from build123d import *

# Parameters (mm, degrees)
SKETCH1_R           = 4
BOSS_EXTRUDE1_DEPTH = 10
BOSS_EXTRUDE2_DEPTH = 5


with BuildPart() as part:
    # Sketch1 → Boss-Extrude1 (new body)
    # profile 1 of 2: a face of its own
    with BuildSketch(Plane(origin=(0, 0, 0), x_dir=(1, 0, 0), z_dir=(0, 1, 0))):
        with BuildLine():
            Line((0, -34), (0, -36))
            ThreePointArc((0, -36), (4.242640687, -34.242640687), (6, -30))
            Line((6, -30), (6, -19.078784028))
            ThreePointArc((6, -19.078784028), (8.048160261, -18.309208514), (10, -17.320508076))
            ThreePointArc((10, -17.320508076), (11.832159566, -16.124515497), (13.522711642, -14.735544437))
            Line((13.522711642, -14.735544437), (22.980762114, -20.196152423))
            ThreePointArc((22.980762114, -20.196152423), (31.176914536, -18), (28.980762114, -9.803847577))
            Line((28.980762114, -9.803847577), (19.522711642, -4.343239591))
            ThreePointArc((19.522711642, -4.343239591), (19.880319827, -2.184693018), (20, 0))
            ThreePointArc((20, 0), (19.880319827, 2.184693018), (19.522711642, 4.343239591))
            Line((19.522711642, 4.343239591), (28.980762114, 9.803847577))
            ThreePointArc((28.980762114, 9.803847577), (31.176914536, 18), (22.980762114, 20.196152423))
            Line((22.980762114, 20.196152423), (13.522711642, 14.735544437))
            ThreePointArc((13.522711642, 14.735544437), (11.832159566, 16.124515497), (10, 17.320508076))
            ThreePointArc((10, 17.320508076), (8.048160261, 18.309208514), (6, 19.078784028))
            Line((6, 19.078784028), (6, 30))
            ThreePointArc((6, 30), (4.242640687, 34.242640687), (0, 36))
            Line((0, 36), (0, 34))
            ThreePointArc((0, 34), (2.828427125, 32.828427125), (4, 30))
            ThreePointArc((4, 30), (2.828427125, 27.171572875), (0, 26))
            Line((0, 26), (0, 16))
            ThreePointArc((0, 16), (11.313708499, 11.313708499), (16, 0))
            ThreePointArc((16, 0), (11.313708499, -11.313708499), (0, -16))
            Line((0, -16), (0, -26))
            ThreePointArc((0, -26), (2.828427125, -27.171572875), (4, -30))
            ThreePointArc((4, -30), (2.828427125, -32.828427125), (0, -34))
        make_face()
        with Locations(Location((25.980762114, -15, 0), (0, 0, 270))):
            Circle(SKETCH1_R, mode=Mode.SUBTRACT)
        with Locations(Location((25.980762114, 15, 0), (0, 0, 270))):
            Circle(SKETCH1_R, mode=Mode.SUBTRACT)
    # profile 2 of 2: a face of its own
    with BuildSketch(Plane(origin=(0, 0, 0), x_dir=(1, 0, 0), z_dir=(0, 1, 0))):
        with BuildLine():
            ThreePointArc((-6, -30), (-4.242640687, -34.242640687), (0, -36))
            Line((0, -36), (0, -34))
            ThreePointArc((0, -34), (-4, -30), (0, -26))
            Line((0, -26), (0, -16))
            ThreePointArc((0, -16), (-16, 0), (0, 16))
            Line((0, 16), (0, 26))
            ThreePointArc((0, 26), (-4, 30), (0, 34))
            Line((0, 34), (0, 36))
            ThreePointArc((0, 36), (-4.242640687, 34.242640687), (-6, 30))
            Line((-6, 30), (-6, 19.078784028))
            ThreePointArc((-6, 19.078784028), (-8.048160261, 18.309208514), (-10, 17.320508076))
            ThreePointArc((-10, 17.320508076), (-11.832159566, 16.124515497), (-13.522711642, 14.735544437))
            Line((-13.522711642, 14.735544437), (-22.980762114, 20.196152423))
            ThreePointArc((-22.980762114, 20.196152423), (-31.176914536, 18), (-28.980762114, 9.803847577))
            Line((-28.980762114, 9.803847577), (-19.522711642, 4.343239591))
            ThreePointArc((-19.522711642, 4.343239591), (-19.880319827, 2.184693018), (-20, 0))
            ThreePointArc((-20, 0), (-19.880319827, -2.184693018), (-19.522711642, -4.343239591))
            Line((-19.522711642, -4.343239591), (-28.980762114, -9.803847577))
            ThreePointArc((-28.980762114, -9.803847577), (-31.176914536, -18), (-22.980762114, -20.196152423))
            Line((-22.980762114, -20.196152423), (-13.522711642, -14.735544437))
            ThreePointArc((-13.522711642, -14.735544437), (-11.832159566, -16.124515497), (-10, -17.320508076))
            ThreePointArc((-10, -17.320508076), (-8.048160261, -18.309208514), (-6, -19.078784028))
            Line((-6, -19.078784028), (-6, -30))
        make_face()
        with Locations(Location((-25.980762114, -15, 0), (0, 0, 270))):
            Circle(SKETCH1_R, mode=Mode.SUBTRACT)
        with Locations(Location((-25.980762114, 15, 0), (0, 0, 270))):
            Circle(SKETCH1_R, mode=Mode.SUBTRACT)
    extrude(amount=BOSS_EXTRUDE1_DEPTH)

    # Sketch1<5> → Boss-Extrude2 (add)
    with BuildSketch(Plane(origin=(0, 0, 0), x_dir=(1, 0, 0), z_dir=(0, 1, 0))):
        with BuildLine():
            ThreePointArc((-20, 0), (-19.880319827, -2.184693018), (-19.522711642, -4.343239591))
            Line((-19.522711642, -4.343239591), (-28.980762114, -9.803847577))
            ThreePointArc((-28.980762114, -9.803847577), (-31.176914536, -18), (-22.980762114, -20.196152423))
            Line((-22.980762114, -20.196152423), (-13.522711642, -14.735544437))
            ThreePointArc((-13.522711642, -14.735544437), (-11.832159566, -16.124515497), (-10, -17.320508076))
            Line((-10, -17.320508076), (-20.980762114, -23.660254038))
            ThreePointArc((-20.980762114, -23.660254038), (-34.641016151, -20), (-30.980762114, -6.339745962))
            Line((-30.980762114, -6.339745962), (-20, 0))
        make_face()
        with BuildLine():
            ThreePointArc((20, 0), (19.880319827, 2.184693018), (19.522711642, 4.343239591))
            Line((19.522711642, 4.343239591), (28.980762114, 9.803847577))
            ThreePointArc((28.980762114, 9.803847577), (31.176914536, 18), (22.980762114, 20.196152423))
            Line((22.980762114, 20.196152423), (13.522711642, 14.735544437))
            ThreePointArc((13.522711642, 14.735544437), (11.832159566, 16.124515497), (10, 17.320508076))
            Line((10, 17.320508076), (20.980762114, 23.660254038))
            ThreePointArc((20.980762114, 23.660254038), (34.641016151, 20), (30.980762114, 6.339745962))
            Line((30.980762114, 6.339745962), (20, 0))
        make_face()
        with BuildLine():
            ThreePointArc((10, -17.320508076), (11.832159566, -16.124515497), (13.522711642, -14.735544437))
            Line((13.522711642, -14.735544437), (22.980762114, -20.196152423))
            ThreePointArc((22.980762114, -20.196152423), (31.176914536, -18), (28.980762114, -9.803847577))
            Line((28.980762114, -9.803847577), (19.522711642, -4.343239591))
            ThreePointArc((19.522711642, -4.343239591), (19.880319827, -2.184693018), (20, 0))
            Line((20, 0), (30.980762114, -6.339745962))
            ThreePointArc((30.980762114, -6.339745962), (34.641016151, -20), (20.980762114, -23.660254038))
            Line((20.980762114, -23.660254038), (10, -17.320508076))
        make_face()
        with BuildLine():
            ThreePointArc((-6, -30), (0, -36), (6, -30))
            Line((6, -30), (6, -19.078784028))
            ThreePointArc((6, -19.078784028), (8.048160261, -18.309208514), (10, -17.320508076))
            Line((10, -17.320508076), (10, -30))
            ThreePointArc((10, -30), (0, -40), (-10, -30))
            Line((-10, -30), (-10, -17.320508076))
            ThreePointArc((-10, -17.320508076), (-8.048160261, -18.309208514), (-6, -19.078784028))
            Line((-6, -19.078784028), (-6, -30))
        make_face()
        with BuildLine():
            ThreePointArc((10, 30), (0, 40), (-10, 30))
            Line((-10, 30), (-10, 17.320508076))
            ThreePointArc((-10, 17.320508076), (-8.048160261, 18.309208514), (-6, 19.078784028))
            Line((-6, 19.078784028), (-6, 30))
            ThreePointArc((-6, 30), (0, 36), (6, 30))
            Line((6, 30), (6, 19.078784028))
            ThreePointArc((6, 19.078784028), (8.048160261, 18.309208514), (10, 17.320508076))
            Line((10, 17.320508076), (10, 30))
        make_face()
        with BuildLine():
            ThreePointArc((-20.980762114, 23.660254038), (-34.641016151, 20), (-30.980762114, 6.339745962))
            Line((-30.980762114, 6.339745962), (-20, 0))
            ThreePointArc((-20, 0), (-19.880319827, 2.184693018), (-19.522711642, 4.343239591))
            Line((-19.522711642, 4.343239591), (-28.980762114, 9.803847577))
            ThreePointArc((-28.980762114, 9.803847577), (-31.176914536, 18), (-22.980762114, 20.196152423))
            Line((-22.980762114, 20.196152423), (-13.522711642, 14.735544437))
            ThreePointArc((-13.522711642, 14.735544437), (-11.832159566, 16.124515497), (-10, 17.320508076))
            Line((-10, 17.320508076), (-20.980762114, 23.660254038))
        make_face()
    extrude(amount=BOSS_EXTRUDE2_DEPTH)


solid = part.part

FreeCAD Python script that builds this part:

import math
import FreeCAD as App
import Part
import Sketcher
Q = App.Units.Quantity

doc = App.newDocument("Part")
body = doc.addObject("PartDesign::Body", "Body")

# Sketch on XZ plane
sketch1 = doc.addObject("Sketcher::SketchObject", "Sketch")
body.addObject(sketch1)
sketch1.AttachmentSupport = (doc.XZ_Plane, [""])
sketch1.MapMode = "FlatFace"
sketch1.addGeometry([
    Part.ArcOfCircle(Part.Circle(App.Vector(0, 30, 0), App.Vector(0, 0, 1), 6), math.radians(0), math.radians(90)),  # 0
    Part.LineSegment(App.Vector(6, 30, 0), App.Vector(6, 19.1, 0)),  # 1
    Part.ArcOfCircle(Part.Circle(App.Vector(0, 0, 0), App.Vector(0, 0, 1), 20), math.radians(60), math.radians(72.54)),  # 2
    Part.ArcOfCircle(Part.Circle(App.Vector(0, 0, 0), App.Vector(0, 0, 1), 20), math.radians(47.46), math.radians(60)),  # 3
    Part.LineSegment(App.Vector(13.5, 14.7, 0), App.Vector(23, 20.2, 0)),  # 4
    Part.ArcOfCircle(Part.Circle(App.Vector(26, 15, 0), App.Vector(0, 0, 1), 6), math.radians(-60), math.radians(120)),  # 5
    Part.LineSegment(App.Vector(29, 9.8, 0), App.Vector(19.5, 4.3, 0)),  # 6
    Part.ArcOfCircle(Part.Circle(App.Vector(0, 0, 0), App.Vector(0, 0, 1), 20), math.radians(0), math.radians(12.54)),  # 7
    Part.ArcOfCircle(Part.Circle(App.Vector(0, 0, 0), App.Vector(0, 0, 1), 20), math.radians(-12.54), math.radians(0)),  # 8
    Part.LineSegment(App.Vector(19.5, -4.3, 0), App.Vector(29, -9.8, 0)),  # 9
    Part.ArcOfCircle(Part.Circle(App.Vector(26, -15, 0), App.Vector(0, 0, 1), 6), math.radians(-120), math.radians(60)),  # 10
    Part.LineSegment(App.Vector(23, -20.2, 0), App.Vector(13.5, -14.7, 0)),  # 11
    Part.ArcOfCircle(Part.Circle(App.Vector(0, 0, 0), App.Vector(0, 0, 1), 20), math.radians(-60), math.radians(-47.46)),  # 12
    Part.ArcOfCircle(Part.Circle(App.Vector(0, 0, 0), App.Vector(0, 0, 1), 20), math.radians(-72.54), math.radians(-60)),  # 13
    Part.LineSegment(App.Vector(6, -19.1, 0), App.Vector(6, -30, 0)),  # 14
    Part.ArcOfCircle(Part.Circle(App.Vector(0, -30, 0), App.Vector(0, 0, 1), 6), math.radians(-90), math.radians(0)),  # 15
    Part.ArcOfCircle(Part.Circle(App.Vector(0, -30, 0), App.Vector(0, 0, 1), 6), math.radians(180), math.radians(270)),  # 16
    Part.LineSegment(App.Vector(-6, -30, 0), App.Vector(-6, -19.1, 0)),  # 17
    Part.ArcOfCircle(Part.Circle(App.Vector(0, 0, 0), App.Vector(0, 0, 1), 20), math.radians(-120), math.radians(-107.46)),  # 18
    Part.ArcOfCircle(Part.Circle(App.Vector(0, 0, 0), App.Vector(0, 0, 1), 20), math.radians(-132.54), math.radians(-120)),  # 19
    Part.LineSegment(App.Vector(-13.5, -14.7, 0), App.Vector(-23, -20.2, 0)),  # 20
    Part.ArcOfCircle(Part.Circle(App.Vector(-26, -15, 0), App.Vector(0, 0, 1), 6), math.radians(120), math.radians(300)),  # 21
    Part.LineSegment(App.Vector(-29, -9.8, 0), App.Vector(-19.5, -4.3, 0)),  # 22
    Part.ArcOfCircle(Part.Circle(App.Vector(0, 0, 0), App.Vector(0, 0, 1), 20), math.radians(180), math.radians(192.54)),  # 23
    Part.ArcOfCircle(Part.Circle(App.Vector(0, 0, 0), App.Vector(0, 0, 1), 20), math.radians(167.46), math.radians(180)),  # 24
    Part.LineSegment(App.Vector(-19.5, 4.3, 0), App.Vector(-29, 9.8, 0)),  # 25
    Part.ArcOfCircle(Part.Circle(App.Vector(-26, 15, 0), App.Vector(0, 0, 1), 6), math.radians(60), math.radians(240)),  # 26
    Part.LineSegment(App.Vector(-23, 20.2, 0), App.Vector(-13.5, 14.7, 0)),  # 27
    Part.ArcOfCircle(Part.Circle(App.Vector(0, 0, 0), App.Vector(0, 0, 1), 20), math.radians(120), math.radians(132.54)),  # 28
    Part.ArcOfCircle(Part.Circle(App.Vector(0, 0, 0), App.Vector(0, 0, 1), 20), math.radians(107.46), math.radians(120)),  # 29
    Part.LineSegment(App.Vector(-6, 19.1, 0), App.Vector(-6, 30, 0)),  # 30
    Part.ArcOfCircle(Part.Circle(App.Vector(0, 30, 0), App.Vector(0, 0, 1), 6), math.radians(90), math.radians(180)),  # 31
    Part.ArcOfCircle(Part.Circle(App.Vector(0, 30, 0), App.Vector(0, 0, 1), 4), math.radians(0), math.radians(90)),  # 32
    Part.ArcOfCircle(Part.Circle(App.Vector(0, 30, 0), App.Vector(0, 0, 1), 4), math.radians(90), math.radians(270)),  # 33
    Part.ArcOfCircle(Part.Circle(App.Vector(0, 30, 0), App.Vector(0, 0, 1), 4), math.radians(-90), math.radians(0)),  # 34
    Part.ArcOfCircle(Part.Circle(App.Vector(0, 0, 0), App.Vector(0, 0, 1), 16), math.radians(0), math.radians(90)),  # 35
    Part.ArcOfCircle(Part.Circle(App.Vector(0, 0, 0), App.Vector(0, 0, 1), 16), math.radians(90), math.radians(270)),  # 36
    Part.ArcOfCircle(Part.Circle(App.Vector(0, 0, 0), App.Vector(0, 0, 1), 16), math.radians(-90), math.radians(0)),  # 37
    Part.ArcOfCircle(Part.Circle(App.Vector(0, -30, 0), App.Vector(0, 0, 1), 4), math.radians(0), math.radians(90)),  # 38
    Part.ArcOfCircle(Part.Circle(App.Vector(0, -30, 0), App.Vector(0, 0, 1), 4), math.radians(90), math.radians(270)),  # 39
    Part.ArcOfCircle(Part.Circle(App.Vector(0, -30, 0), App.Vector(0, 0, 1), 4), math.radians(-90), math.radians(0)),  # 40
    Part.Circle(App.Vector(26, 15, 0), App.Vector(0, 0, 1), 4),  # 41
    Part.Circle(App.Vector(26, -15, 0), App.Vector(0, 0, 1), 4),  # 42
    Part.Circle(App.Vector(-26, -15, 0), App.Vector(0, 0, 1), 4),  # 43
    Part.Circle(App.Vector(-26, 15, 0), App.Vector(0, 0, 1), 4),  # 44
], False)
sketch1.addConstraint([
    Sketcher.Constraint("Tangent", 0, 1, 1, 1),
    Sketcher.Constraint("Coincident", 1, 2, 2, 2),
    Sketcher.Constraint("Tangent", 2, 1, 3, 2),
    Sketcher.Constraint("Coincident", 3, 1, 4, 1),
    Sketcher.Constraint("Tangent", 4, 2, 5, 2),
    Sketcher.Constraint("Tangent", 5, 1, 6, 1),
    Sketcher.Constraint("Coincident", 6, 2, 7, 2),
    Sketcher.Constraint("Tangent", 7, 1, 8, 2),
    Sketcher.Constraint("Coincident", 8, 1, 9, 1),
    Sketcher.Constraint("Tangent", 9, 2, 10, 2),
    Sketcher.Constraint("Tangent", 10, 1, 11, 1),
    Sketcher.Constraint("Coincident", 11, 2, 12, 2),
    Sketcher.Constraint("Tangent", 12, 1, 13, 2),
    Sketcher.Constraint("Coincident", 13, 1, 14, 1),
    Sketcher.Constraint("Tangent", 14, 2, 15, 2),
    Sketcher.Constraint("Tangent", 15, 1, 16, 2),
    Sketcher.Constraint("Tangent", 16, 1, 17, 1),
    Sketcher.Constraint("Coincident", 17, 2, 18, 2),
    Sketcher.Constraint("Tangent", 18, 1, 19, 2),
    Sketcher.Constraint("Coincident", 19, 1, 20, 1),
    Sketcher.Constraint("Tangent", 20, 2, 21, 2),
    Sketcher.Constraint("Tangent", 21, 1, 22, 1),
    Sketcher.Constraint("Coincident", 22, 2, 23, 2),
    Sketcher.Constraint("Tangent", 23, 1, 24, 2),
    Sketcher.Constraint("Coincident", 24, 1, 25, 1),
    Sketcher.Constraint("Tangent", 25, 2, 26, 2),
    Sketcher.Constraint("Tangent", 26, 1, 27, 1),
    Sketcher.Constraint("Coincident", 27, 2, 28, 2),
    Sketcher.Constraint("Tangent", 28, 1, 29, 2),
    Sketcher.Constraint("Coincident", 29, 1, 30, 1),
    Sketcher.Constraint("Tangent", 30, 2, 31, 2),
    Sketcher.Constraint("Tangent", 31, 1, 0, 2),
    Sketcher.Constraint("Tangent", 32, 2, 33, 1),
    Sketcher.Constraint("Tangent", 33, 2, 34, 1),
    Sketcher.Constraint("Tangent", 34, 2, 32, 1),
    Sketcher.Constraint("Tangent", 35, 2, 36, 1),
    Sketcher.Constraint("Tangent", 36, 2, 37, 1),
    Sketcher.Constraint("Tangent", 37, 2, 35, 1),
    Sketcher.Constraint("Tangent", 38, 2, 39, 1),
    Sketcher.Constraint("Tangent", 39, 2, 40, 1),
    Sketcher.Constraint("Tangent", 40, 2, 38, 1),
    Sketcher.Constraint("Vertical", 1),
    Sketcher.Constraint("Vertical", 14),
    Sketcher.Constraint("Vertical", 17),
    Sketcher.Constraint("Vertical", 30),
    Sketcher.Constraint("Coincident", 2, 3, -1, 1),
    Sketcher.Constraint("Coincident", 7, 3, -1, 1),
    Sketcher.Constraint("Coincident", 12, 3, -1, 1),
    Sketcher.Constraint("Coincident", 18, 3, -1, 1),
    Sketcher.Constraint("Coincident", 23, 3, -1, 1),
    Sketcher.Constraint("Coincident", 28, 3, -1, 1),
    Sketcher.Constraint("Coincident", 35, 3, -1, 1),
    Sketcher.Constraint("Coincident", 32, 3, 0, 3),
    Sketcher.Constraint("Coincident", 38, 3, 15, 3),
    Sketcher.Constraint("Coincident", 41, 3, 5, 3),
    Sketcher.Constraint("Coincident", 42, 3, 10, 3),
    Sketcher.Constraint("Coincident", 43, 3, 21, 3),
    Sketcher.Constraint("Coincident", 44, 3, 26, 3),
    Sketcher.Constraint("Equal", 2, 3),
    Sketcher.Constraint("Equal", 0, 5),
    Sketcher.Constraint("Equal", 3, 7),
    Sketcher.Constraint("Equal", 7, 8),
    Sketcher.Constraint("Equal", 5, 10),
    Sketcher.Constraint("Equal", 8, 12),
    Sketcher.Constraint("Equal", 12, 13),
    Sketcher.Constraint("Equal", 10, 15),
    Sketcher.Constraint("Equal", 15, 16),
    Sketcher.Constraint("Equal", 13, 18),
    Sketcher.Constraint("Equal", 18, 19),
    Sketcher.Constraint("Equal", 16, 21),
    Sketcher.Constraint("Equal", 19, 23),
    Sketcher.Constraint("Equal", 23, 24),
    Sketcher.Constraint("Equal", 21, 26),
    Sketcher.Constraint("Equal", 24, 28),
    Sketcher.Constraint("Equal", 28, 29),
    Sketcher.Constraint("Equal", 26, 31),
    Sketcher.Constraint("Equal", 34, 38),
    Sketcher.Constraint("Equal", 40, 41),
    Sketcher.Constraint("Equal", 41, 42),
    Sketcher.Constraint("Equal", 42, 43),
    Sketcher.Constraint("Equal", 43, 44),
    Sketcher.Constraint("Symmetric", 0, 3, 15, 3, -1, 1),
    Sketcher.Constraint("Symmetric", 5, 3, 21, 3, -1, 1),
    Sketcher.Constraint("Symmetric", 10, 3, 26, 3, -1, 1),
    Sketcher.Constraint("Symmetric", 10, 3, 21, 3, -2),
    Sketcher.Constraint("Symmetric", 34, 2, 40, 2, -1),
    Sketcher.Constraint("PointOnObject", 7, 1, -1),
    Sketcher.Constraint("PointOnObject", 15, 1, -2),
    Sketcher.Constraint("PointOnObject", 23, 1, -1),
    Sketcher.Constraint("PointOnObject", 31, 1, -2),
    Sketcher.Constraint("PointOnObject", 32, 2, -2),
    Sketcher.Constraint("PointOnObject", 33, 2, -2),
    Sketcher.Constraint("PointOnObject", 35, 2, -2),
    Sketcher.Constraint("PointOnObject", 36, 2, -2),
    Sketcher.Constraint("PointOnObject", 37, 2, -1),
    Sketcher.Constraint("PointOnObject", 38, 2, -2),
    Sketcher.Constraint("PointOnObject", 39, 2, -2),
    Sketcher.Constraint("Parallel", 4, 6),
    Sketcher.Constraint("Parallel", 9, 11),
    Sketcher.Constraint("Parallel", 6, 20),
    Sketcher.Constraint("Parallel", 20, 22),
    Sketcher.Constraint("Parallel", 11, 25),
    Sketcher.Constraint("Parallel", 25, 27),
    Sketcher.Constraint("Horizontal", 12, 1, 18, 1),
    Sketcher.Constraint("Horizontal", 11, 2, 19, 1),
    Sketcher.Constraint("Horizontal", 2, 1, 28, 1),
    Sketcher.Constraint("Horizontal", 30, 2, 34, 2),
    Sketcher.Constraint("Vertical", 2, 1, 12, 1),
    Sketcher.Constraint("Equal", 4, 6),
    Sketcher.Constraint("Diameter", 41, Q("8 mm")),
    Sketcher.Constraint("Radius", 0, Q("6 mm")),
    Sketcher.Constraint("Radius", 2, Q("20 mm")),
    Sketcher.Constraint("Radius", 35, Q("16 mm")),
    Sketcher.Constraint("Angle", 4, Q("30 deg")),
    Sketcher.Constraint("DistanceY", -1, 1, 0, 3, Q("30 mm")),
    Sketcher.Constraint("DistanceY", -1, 1, 5, 3, Q("15 mm")),
    Sketcher.Constraint("DistanceX", -1, 1, 2, 1, Q("10 mm")),
])
pad1 = doc.addObject("PartDesign::Pad", "Pad")
body.addObject(pad1)
pad1.Profile = sketch1
pad1.Length = 10
pad1.Reversed = True

# Sketch on XZ plane
sketch2 = doc.addObject("Sketcher::SketchObject", "Sketch001")
body.addObject(sketch2)
sketch2.AttachmentSupport = (doc.XZ_Plane, [""])
sketch2.MapMode = "FlatFace"
sketch2.addGeometry([
    Part.ArcOfCircle(Part.Circle(App.Vector(0, 0, 0), App.Vector(0, 0, 1), 20), math.radians(167.46), math.radians(180)),  # 0
    Part.LineSegment(App.Vector(-20, 0, 0), App.Vector(-31, 6.3, 0)),  # 1
    Part.ArcOfCircle(Part.Circle(App.Vector(-26, 15, 0), App.Vector(0, 0, 1), 10), math.radians(60), math.radians(240)),  # 2
    Part.LineSegment(App.Vector(-21, 23.7, 0), App.Vector(-10, 17.3, 0)),  # 3
    Part.ArcOfCircle(Part.Circle(App.Vector(0, 0, 0), App.Vector(0, 0, 1), 20), math.radians(120), math.radians(132.54)),  # 4
    Part.LineSegment(App.Vector(-13.5, 14.7, 0), App.Vector(-23, 20.2, 0)),  # 5
    Part.ArcOfCircle(Part.Circle(App.Vector(-26, 15, 0), App.Vector(0, 0, 1), 6), math.radians(60), math.radians(240)),  # 6
    Part.LineSegment(App.Vector(-29, 9.8, 0), App.Vector(-19.5, 4.3, 0)),  # 7
    Part.ArcOfCircle(Part.Circle(App.Vector(0, 0, 0), App.Vector(0, 0, 1), 20), math.radians(-12.54), math.radians(0)),  # 8
    Part.LineSegment(App.Vector(20, 0, 0), App.Vector(31, -6.3, 0)),  # 9
    Part.ArcOfCircle(Part.Circle(App.Vector(26, -15, 0), App.Vector(0, 0, 1), 10), math.radians(-120), math.radians(60)),  # 10
    Part.LineSegment(App.Vector(21, -23.7, 0), App.Vector(10, -17.3, 0)),  # 11
    Part.ArcOfCircle(Part.Circle(App.Vector(0, 0, 0), App.Vector(0, 0, 1), 20), math.radians(-60), math.radians(-47.46)),  # 12
    Part.LineSegment(App.Vector(13.5, -14.7, 0), App.Vector(23, -20.2, 0)),  # 13
    Part.ArcOfCircle(Part.Circle(App.Vector(26, -15, 0), App.Vector(0, 0, 1), 6), math.radians(-120), math.radians(60)),  # 14
    Part.LineSegment(App.Vector(29, -9.8, 0), App.Vector(19.5, -4.3, 0)),  # 15
    Part.ArcOfCircle(Part.Circle(App.Vector(0, 0, 0), App.Vector(0, 0, 1), 20), math.radians(47.46), math.radians(60)),  # 16
    Part.LineSegment(App.Vector(10, 17.3, 0), App.Vector(21, 23.7, 0)),  # 17
    Part.ArcOfCircle(Part.Circle(App.Vector(26, 15, 0), App.Vector(0, 0, 1), 10), math.radians(-60), math.radians(120)),  # 18
    Part.LineSegment(App.Vector(31, 6.3, 0), App.Vector(20, 0, 0)),  # 19
    Part.ArcOfCircle(Part.Circle(App.Vector(0, 0, 0), App.Vector(0, 0, 1), 20), math.radians(0), math.radians(12.54)),  # 20
    Part.LineSegment(App.Vector(19.5, 4.3, 0), App.Vector(29, 9.8, 0)),  # 21
    Part.ArcOfCircle(Part.Circle(App.Vector(26, 15, 0), App.Vector(0, 0, 1), 6), math.radians(-60), math.radians(120)),  # 22
    Part.LineSegment(App.Vector(23, 20.2, 0), App.Vector(13.5, 14.7, 0)),  # 23
    Part.ArcOfCircle(Part.Circle(App.Vector(0, 30, 0), App.Vector(0, 0, 1), 6), math.radians(0), math.radians(180)),  # 24
    Part.LineSegment(App.Vector(-6, 30, 0), App.Vector(-6, 19.1, 0)),  # 25
    Part.ArcOfCircle(Part.Circle(App.Vector(0, 0, 0), App.Vector(0, 0, 1), 20), math.radians(107.46), math.radians(120)),  # 26
    Part.LineSegment(App.Vector(-10, 17.3, 0), App.Vector(-10, 30, 0)),  # 27
    Part.ArcOfCircle(Part.Circle(App.Vector(0, 30, 0), App.Vector(0, 0, 1), 10), math.radians(0), math.radians(180)),  # 28
    Part.LineSegment(App.Vector(10, 30, 0), App.Vector(10, 17.3, 0)),  # 29
    Part.ArcOfCircle(Part.Circle(App.Vector(0, 0, 0), App.Vector(0, 0, 1), 20), math.radians(60), math.radians(72.54)),  # 30
    Part.LineSegment(App.Vector(6, 19.1, 0), App.Vector(6, 30, 0)),  # 31
    Part.ArcOfCircle(Part.Circle(App.Vector(0, -30, 0), App.Vector(0, 0, 1), 10), math.radians(180), math.radians(360)),  # 32
    Part.LineSegment(App.Vector(-10, -30, 0), App.Vector(-10, -17.3, 0)),  # 33
    Part.ArcOfCircle(Part.Circle(App.Vector(0, 0, 0), App.Vector(0, 0, 1), 20), math.radians(-120), math.radians(-107.46)),  # 34
    Part.LineSegment(App.Vector(-6, -19.1, 0), App.Vector(-6, -30, 0)),  # 35
    Part.ArcOfCircle(Part.Circle(App.Vector(0, -30, 0), App.Vector(0, 0, 1), 6), math.radians(180), math.radians(360)),  # 36
    Part.LineSegment(App.Vector(6, -30, 0), App.Vector(6, -19.1, 0)),  # 37
    Part.ArcOfCircle(Part.Circle(App.Vector(0, 0, 0), App.Vector(0, 0, 1), 20), math.radians(-72.54), math.radians(-60)),  # 38
    Part.LineSegment(App.Vector(10, -17.3, 0), App.Vector(10, -30, 0)),  # 39
    Part.ArcOfCircle(Part.Circle(App.Vector(-26, -15, 0), App.Vector(0, 0, 1), 10), math.radians(120), math.radians(300)),  # 40
    Part.LineSegment(App.Vector(-31, -6.3, 0), App.Vector(-20, 0, 0)),  # 41
    Part.ArcOfCircle(Part.Circle(App.Vector(0, 0, 0), App.Vector(0, 0, 1), 20), math.radians(180), math.radians(192.54)),  # 42
    Part.LineSegment(App.Vector(-19.5, -4.3, 0), App.Vector(-29, -9.8, 0)),  # 43
    Part.ArcOfCircle(Part.Circle(App.Vector(-26, -15, 0), App.Vector(0, 0, 1), 6), math.radians(120), math.radians(300)),  # 44
    Part.LineSegment(App.Vector(-23, -20.2, 0), App.Vector(-13.5, -14.7, 0)),  # 45
    Part.ArcOfCircle(Part.Circle(App.Vector(0, 0, 0), App.Vector(0, 0, 1), 20), math.radians(-132.54), math.radians(-120)),  # 46
    Part.LineSegment(App.Vector(-10, -17.3, 0), App.Vector(-21, -23.7, 0)),  # 47
], False)
sketch2.addConstraint([
    Sketcher.Constraint("Coincident", 0, 2, 1, 1),
    Sketcher.Constraint("Tangent", 1, 2, 2, 2),
    Sketcher.Constraint("Tangent", 2, 1, 3, 1),
    Sketcher.Constraint("Coincident", 3, 2, 4, 1),
    Sketcher.Constraint("Coincident", 4, 2, 5, 1),
    Sketcher.Constraint("Tangent", 5, 2, 6, 1),
    Sketcher.Constraint("Tangent", 6, 2, 7, 1),
    Sketcher.Constraint("Coincident", 7, 2, 0, 1),
    Sketcher.Constraint("Coincident", 8, 2, 9, 1),
    Sketcher.Constraint("Tangent", 9, 2, 10, 2),
    Sketcher.Constraint("Tangent", 10, 1, 11, 1),
    Sketcher.Constraint("Coincident", 11, 2, 12, 1),
    Sketcher.Constraint("Coincident", 12, 2, 13, 1),
    Sketcher.Constraint("Tangent", 13, 2, 14, 1),
    Sketcher.Constraint("Tangent", 14, 2, 15, 1),
    Sketcher.Constraint("Coincident", 15, 2, 8, 1),
    Sketcher.Constraint("Coincident", 16, 2, 17, 1),
    Sketcher.Constraint("Tangent", 17, 2, 18, 2),
    Sketcher.Constraint("Tangent", 18, 1, 19, 1),
    Sketcher.Constraint("Coincident", 19, 2, 20, 1),
    Sketcher.Constraint("Coincident", 20, 2, 21, 1),
    Sketcher.Constraint("Tangent", 21, 2, 22, 1),
    Sketcher.Constraint("Tangent", 22, 2, 23, 1),
    Sketcher.Constraint("Coincident", 23, 2, 16, 1),
    Sketcher.Constraint("Tangent", 24, 2, 25, 1),
    Sketcher.Constraint("Coincident", 25, 2, 26, 1),
    Sketcher.Constraint("Coincident", 26, 2, 27, 1),
    Sketcher.Constraint("Tangent", 27, 2, 28, 2),
    Sketcher.Constraint("Tangent", 28, 1, 29, 1),
    Sketcher.Constraint("Coincident", 29, 2, 30, 1),
    Sketcher.Constraint("Coincident", 30, 2, 31, 1),
    Sketcher.Constraint("Tangent", 31, 2, 24, 1),
    Sketcher.Constraint("Tangent", 32, 1, 33, 1),
    Sketcher.Constraint("Coincident", 33, 2, 34, 1),
    Sketcher.Constraint("Coincident", 34, 2, 35, 1),
    Sketcher.Constraint("Tangent", 35, 2, 36, 1),
    Sketcher.Constraint("Tangent", 36, 2, 37, 1),
    Sketcher.Constraint("Coincident", 37, 2, 38, 1),
    Sketcher.Constraint("Coincident", 38, 2, 39, 1),
    Sketcher.Constraint("Tangent", 39, 2, 32, 2),
    Sketcher.Constraint("Tangent", 40, 1, 41, 1),
    Sketcher.Constraint("Coincident", 41, 2, 42, 1),
    Sketcher.Constraint("Coincident", 42, 2, 43, 1),
    Sketcher.Constraint("Tangent", 43, 2, 44, 1),
    Sketcher.Constraint("Tangent", 44, 2, 45, 1),
    Sketcher.Constraint("Coincident", 45, 2, 46, 1),
    Sketcher.Constraint("Coincident", 46, 2, 47, 1),
    Sketcher.Constraint("Tangent", 47, 2, 40, 2),
    Sketcher.Constraint("Vertical", 25),
    Sketcher.Constraint("Vertical", 27),
    Sketcher.Constraint("Vertical", 29),
    Sketcher.Constraint("Vertical", 31),
    Sketcher.Constraint("Vertical", 33),
    Sketcher.Constraint("Vertical", 35),
    Sketcher.Constraint("Vertical", 37),
    Sketcher.Constraint("Vertical", 39),
    Sketcher.Constraint("Coincident", 0, 3, -1, 1),
    Sketcher.Constraint("Coincident", 4, 3, -1, 1),
    Sketcher.Constraint("Coincident", 8, 3, -1, 1),
    Sketcher.Constraint("Coincident", 12, 3, -1, 1),
    Sketcher.Constraint("Coincident", 16, 3, -1, 1),
    Sketcher.Constraint("Coincident", 20, 3, -1, 1),
    Sketcher.Constraint("Coincident", 26, 3, -1, 1),
    Sketcher.Constraint("Coincident", 30, 3, -1, 1),
    Sketcher.Constraint("Coincident", 34, 3, -1, 1),
    Sketcher.Constraint("Coincident", 38, 3, -1, 1),
    Sketcher.Constraint("Coincident", 42, 3, -1, 1),
    Sketcher.Constraint("Coincident", 46, 3, -1, 1),
    Sketcher.Constraint("Coincident", 6, 3, 2, 3),
    Sketcher.Constraint("Coincident", 14, 3, 10, 3),
    Sketcher.Constraint("Coincident", 22, 3, 18, 3),
    Sketcher.Constraint("Coincident", 28, 3, 24, 3),
    Sketcher.Constraint("Coincident", 36, 3, 32, 3),
    Sketcher.Constraint("Coincident", 44, 3, 40, 3),
    Sketcher.Constraint("Coincident", 19, 2, 8, 2),
    Sketcher.Constraint("Coincident", 26, 2, 3, 2),
    Sketcher.Constraint("Coincident", 29, 2, 16, 2),
    Sketcher.Constraint("Coincident", 38, 2, 11, 2),
    Sketcher.Constraint("Coincident", 41, 2, 0, 2),
    Sketcher.Constraint("Coincident", 46, 2, 33, 2),
    Sketcher.Constraint("Equal", 0, 4),
    Sketcher.Constraint("Equal", 4, 8),
    Sketcher.Constraint("Equal", 2, 10),
    Sketcher.Constraint("Equal", 8, 12),
    Sketcher.Constraint("Equal", 6, 14),
    Sketcher.Constraint("Equal", 12, 16),
    Sketcher.Constraint("Equal", 10, 18),
    Sketcher.Constraint("Equal", 14, 22),
    Sketcher.Constraint("Equal", 22, 24),
    Sketcher.Constraint("Equal", 18, 28),
    Sketcher.Constraint("Equal", 28, 32),
    Sketcher.Constraint("Equal", 30, 34),
    Sketcher.Constraint("Equal", 24, 36),
    Sketcher.Constraint("Equal", 32, 40),
    Sketcher.Constraint("Equal", 36, 44),
    Sketcher.Constraint("Symmetric", 2, 3, 10, 3, -1, 1),
    Sketcher.Constraint("Symmetric", 24, 3, 32, 3, -1, 1),
    Sketcher.Constraint("Symmetric", 18, 3, 40, 3, -1, 1),
    Sketcher.Constraint("Symmetric", 2, 3, 18, 3, -2),
    Sketcher.Constraint("PointOnObject", 24, 3, -2),
    Sketcher.Constraint("PointOnObject", 0, 2, -1),
    Sketcher.Constraint("PointOnObject", 8, 2, -1),
    Sketcher.Constraint("Parallel", 1, 3),
    Sketcher.Constraint("Parallel", 3, 5),
    Sketcher.Constraint("Parallel", 5, 7),
    Sketcher.Constraint("Parallel", 11, 13),
    Sketcher.Constraint("Parallel", 13, 15),
    Sketcher.Constraint("Parallel", 19, 21),
    Sketcher.Constraint("Parallel", 21, 23),
    Sketcher.Constraint("Parallel", 41, 43),
    Sketcher.Constraint("Parallel", 43, 45),
    Sketcher.Constraint("Equal", 1, 3),
    Sketcher.Constraint("Radius", 0, Q("20 mm")),
    Sketcher.Constraint("Radius", 6, Q("6 mm")),
    Sketcher.Constraint("DistanceY", -1, 1, 2, 3, Q("15 mm")),
    Sketcher.Constraint("DistanceY", -1, 1, 24, 3, Q("30 mm")),
])
pad2 = doc.addObject("PartDesign::Pad", "Pad001")
body.addObject(pad2)
pad2.Profile = sketch2
pad2.Length = 5
pad2.Reversed = True

doc.recompute()
